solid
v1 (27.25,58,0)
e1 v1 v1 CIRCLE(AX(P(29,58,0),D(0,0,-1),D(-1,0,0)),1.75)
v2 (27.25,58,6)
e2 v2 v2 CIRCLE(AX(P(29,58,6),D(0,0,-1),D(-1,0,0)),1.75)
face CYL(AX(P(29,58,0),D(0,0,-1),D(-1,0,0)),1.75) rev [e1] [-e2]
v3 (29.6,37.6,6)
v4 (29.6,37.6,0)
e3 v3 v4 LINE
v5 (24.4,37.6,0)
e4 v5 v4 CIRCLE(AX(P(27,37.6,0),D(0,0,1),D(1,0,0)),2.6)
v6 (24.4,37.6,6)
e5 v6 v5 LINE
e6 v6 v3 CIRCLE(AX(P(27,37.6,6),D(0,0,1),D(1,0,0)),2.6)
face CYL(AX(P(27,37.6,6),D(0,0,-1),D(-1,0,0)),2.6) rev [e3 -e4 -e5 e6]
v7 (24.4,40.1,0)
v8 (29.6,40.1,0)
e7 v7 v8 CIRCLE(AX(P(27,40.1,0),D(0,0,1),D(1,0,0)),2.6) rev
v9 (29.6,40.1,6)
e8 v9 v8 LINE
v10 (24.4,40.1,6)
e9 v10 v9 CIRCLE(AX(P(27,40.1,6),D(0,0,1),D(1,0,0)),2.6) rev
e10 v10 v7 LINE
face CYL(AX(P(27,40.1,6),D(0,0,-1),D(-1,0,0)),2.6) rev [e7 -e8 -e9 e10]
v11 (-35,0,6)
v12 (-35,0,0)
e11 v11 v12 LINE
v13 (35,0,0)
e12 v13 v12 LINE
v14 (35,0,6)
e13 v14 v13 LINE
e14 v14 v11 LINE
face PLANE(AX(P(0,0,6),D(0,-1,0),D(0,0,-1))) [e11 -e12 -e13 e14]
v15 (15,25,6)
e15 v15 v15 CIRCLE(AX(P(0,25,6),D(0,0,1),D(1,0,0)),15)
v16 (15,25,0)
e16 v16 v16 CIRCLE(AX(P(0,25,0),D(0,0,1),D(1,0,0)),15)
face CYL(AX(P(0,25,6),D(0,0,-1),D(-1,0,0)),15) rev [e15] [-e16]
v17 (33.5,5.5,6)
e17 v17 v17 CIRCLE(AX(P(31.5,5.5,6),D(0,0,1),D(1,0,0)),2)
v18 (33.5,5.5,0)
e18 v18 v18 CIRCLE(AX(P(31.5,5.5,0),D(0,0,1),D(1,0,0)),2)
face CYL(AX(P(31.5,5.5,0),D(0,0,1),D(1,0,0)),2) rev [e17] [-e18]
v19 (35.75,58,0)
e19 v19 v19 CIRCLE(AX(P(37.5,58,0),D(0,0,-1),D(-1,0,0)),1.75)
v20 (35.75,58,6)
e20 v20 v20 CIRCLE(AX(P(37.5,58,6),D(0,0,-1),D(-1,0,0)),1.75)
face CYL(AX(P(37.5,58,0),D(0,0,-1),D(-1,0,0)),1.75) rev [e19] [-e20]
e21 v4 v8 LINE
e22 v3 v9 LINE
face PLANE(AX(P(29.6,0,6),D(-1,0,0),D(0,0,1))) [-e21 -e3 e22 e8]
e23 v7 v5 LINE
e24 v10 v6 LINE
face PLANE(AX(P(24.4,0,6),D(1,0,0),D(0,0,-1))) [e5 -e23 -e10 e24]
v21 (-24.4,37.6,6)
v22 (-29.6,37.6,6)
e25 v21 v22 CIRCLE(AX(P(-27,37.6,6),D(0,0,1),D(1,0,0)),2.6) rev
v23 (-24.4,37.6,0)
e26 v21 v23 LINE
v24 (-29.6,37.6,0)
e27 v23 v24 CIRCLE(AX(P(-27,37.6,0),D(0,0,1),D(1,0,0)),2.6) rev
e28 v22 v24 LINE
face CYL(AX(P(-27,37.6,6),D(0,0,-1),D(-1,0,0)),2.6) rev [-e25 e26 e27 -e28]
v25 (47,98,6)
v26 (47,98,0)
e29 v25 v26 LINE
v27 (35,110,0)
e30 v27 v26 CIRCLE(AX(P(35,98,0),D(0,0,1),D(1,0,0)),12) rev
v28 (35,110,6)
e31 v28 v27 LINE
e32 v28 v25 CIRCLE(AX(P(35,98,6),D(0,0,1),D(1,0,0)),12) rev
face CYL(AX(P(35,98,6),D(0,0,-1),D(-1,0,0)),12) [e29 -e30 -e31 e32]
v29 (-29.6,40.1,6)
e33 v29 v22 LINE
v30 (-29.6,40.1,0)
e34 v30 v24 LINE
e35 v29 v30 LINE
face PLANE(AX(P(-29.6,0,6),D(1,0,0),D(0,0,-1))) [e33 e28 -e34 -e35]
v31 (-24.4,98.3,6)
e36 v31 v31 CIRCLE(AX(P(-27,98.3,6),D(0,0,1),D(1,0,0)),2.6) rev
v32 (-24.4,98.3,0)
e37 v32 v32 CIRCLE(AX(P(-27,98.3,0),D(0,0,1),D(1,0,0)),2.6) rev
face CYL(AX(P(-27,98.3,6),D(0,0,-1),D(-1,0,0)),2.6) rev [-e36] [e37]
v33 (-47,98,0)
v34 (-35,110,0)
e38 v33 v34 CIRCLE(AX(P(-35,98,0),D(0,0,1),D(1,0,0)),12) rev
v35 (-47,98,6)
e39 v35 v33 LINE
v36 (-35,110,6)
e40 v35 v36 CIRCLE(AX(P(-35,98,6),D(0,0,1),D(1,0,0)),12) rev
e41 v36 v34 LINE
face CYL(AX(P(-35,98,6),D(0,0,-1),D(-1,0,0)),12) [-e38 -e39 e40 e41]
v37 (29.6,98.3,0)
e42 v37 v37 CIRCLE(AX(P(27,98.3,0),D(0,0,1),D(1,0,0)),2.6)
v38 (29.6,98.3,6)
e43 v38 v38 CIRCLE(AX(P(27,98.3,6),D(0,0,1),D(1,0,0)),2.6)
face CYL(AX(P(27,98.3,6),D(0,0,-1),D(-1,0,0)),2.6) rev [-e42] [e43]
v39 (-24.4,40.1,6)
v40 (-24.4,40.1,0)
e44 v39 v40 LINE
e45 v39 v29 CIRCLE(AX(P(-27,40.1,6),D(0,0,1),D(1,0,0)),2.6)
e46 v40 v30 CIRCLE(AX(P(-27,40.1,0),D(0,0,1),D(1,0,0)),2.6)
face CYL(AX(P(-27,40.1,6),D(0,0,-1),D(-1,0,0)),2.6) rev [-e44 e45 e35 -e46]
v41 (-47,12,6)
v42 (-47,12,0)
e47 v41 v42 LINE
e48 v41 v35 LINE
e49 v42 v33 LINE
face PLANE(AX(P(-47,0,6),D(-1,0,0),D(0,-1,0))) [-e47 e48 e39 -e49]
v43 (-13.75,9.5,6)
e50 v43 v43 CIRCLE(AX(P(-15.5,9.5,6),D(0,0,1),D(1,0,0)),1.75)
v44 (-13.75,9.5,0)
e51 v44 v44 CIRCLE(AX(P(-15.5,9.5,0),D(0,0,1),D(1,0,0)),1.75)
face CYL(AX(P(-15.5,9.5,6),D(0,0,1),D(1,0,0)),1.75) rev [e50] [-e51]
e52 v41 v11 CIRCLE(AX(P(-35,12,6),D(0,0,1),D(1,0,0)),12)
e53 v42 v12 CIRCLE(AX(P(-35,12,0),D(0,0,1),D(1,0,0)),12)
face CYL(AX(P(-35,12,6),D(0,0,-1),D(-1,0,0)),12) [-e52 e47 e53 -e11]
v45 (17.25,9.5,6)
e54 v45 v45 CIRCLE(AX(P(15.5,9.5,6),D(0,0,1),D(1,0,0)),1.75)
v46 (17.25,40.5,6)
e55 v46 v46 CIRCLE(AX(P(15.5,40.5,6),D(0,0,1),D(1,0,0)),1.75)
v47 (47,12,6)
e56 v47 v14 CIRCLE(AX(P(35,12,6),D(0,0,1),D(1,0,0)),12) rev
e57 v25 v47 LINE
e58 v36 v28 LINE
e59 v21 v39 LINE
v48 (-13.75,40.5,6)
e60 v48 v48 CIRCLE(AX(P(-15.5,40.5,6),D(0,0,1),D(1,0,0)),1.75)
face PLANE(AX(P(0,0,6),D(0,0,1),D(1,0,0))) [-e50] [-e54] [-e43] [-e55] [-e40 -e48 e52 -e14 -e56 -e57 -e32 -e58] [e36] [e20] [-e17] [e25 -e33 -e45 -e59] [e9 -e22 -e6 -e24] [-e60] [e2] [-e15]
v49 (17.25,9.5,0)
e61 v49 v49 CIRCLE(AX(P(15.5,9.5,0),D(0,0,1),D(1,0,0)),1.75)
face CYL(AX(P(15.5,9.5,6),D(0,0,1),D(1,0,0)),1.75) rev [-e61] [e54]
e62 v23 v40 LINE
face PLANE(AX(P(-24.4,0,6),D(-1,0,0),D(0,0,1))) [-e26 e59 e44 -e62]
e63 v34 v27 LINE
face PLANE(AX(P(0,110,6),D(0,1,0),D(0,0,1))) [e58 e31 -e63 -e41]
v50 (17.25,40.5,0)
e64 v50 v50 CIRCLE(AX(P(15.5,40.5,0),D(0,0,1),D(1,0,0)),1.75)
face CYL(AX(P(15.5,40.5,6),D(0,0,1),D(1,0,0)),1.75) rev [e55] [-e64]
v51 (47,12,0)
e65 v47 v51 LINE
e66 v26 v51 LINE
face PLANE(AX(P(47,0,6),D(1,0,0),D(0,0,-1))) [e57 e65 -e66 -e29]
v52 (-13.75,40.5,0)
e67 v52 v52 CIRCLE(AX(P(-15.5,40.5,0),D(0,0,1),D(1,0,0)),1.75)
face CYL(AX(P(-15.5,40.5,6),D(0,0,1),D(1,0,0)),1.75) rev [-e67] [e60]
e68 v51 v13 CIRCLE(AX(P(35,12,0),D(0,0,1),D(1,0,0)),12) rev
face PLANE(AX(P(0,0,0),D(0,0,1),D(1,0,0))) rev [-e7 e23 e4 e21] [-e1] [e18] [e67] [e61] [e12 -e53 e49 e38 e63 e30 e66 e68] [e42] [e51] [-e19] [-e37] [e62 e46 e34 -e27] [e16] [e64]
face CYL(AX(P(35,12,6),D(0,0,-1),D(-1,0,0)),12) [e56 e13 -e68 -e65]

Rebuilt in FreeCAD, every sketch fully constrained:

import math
import FreeCAD as App
import Part
import Sketcher
Q = App.Units.Quantity

doc = App.newDocument("Part")
params = doc.addObject("Spreadsheet::Sheet", "Params")
for row, (alias, value) in enumerate([
    ("sketch1_diameter", "30 mm"),
    ("sketch1_radius", "12 mm"),
    ("sketch1_diameter2", "5.2 mm"),
    ("sketch1_width", "70 mm"),
    ("sketch1_height", "86 mm"),
    ("pad1_length", "6 mm"),
    ("sketch2_diameter", "4 mm"),
    ("sketch3_diameter", "3.5 mm"),
    ("hole_diameter", "3.5 mm"),
    ("sketch4_diameter", "3.5 mm"),
    ("hole2_diameter", "3.5 mm"),
], start=1):
    params.set(f"A{row}", alias)
    params.set(f"B{row}", "=" + value)
    params.setAlias(f"B{row}", alias)

body = doc.addObject("PartDesign::Body", "Body")

# Sketch on XY plane
sketch1 = body.newObject("Sketcher::SketchObject", "Sketch")
sketch1.AttachmentSupport = (doc.getObject("XY_Plane"), [""])
sketch1.MapMode = "FlatFace"
sketch1.addGeometry(Part.LineSegment(App.Vector(47, 12, 0), App.Vector(47, 98, 0)), False)
sketch1.addGeometry(Part.ArcOfCircle(Part.Circle(App.Vector(35, 98, 0), App.Vector(0, 0, 1), 12), math.radians(0), math.radians(90)), False)
sketch1.addGeometry(Part.LineSegment(App.Vector(35, 110, 0), App.Vector(-35, 110, 0)), False)
sketch1.addGeometry(Part.ArcOfCircle(Part.Circle(App.Vector(-35, 98, 0), App.Vector(0, 0, 1), 12), math.radians(90), math.radians(180)), False)
sketch1.addGeometry(Part.LineSegment(App.Vector(-47, 98, 0), App.Vector(-47, 12, 0)), False)
sketch1.addGeometry(Part.ArcOfCircle(Part.Circle(App.Vector(-35, 12, 0), App.Vector(0, 0, 1), 12), math.radians(-180), math.radians(-90)), False)
sketch1.addGeometry(Part.LineSegment(App.Vector(-35, 0, 0), App.Vector(35, 0, 0)), False)
sketch1.addGeometry(Part.ArcOfCircle(Part.Circle(App.Vector(35, 12, 0), App.Vector(0, 0, 1), 12), math.radians(-90), math.radians(0)), False)
sketch1.addGeometry(Part.Circle(App.Vector(0, 25, 0), App.Vector(0, 0, 1), 15), False)
sketch1.addGeometry(Part.ArcOfCircle(Part.Circle(App.Vector(27, 37.6, 0), App.Vector(0, 0, 1), 2.6), math.radians(180), math.radians(360)), False)
sketch1.addGeometry(Part.LineSegment(App.Vector(24.4, 37.6, 0), App.Vector(24.4, 40.1, 0)), False)
sketch1.addGeometry(Part.ArcOfCircle(Part.Circle(App.Vector(27, 40.1, 0), App.Vector(0, 0, 1), 2.6), math.radians(0), math.radians(180)), False)
sketch1.addGeometry(Part.LineSegment(App.Vector(29.6, 40.1, 0), App.Vector(29.6, 37.6, 0)), False)
sketch1.addGeometry(Part.ArcOfCircle(Part.Circle(App.Vector(-27, 40.1, 0), App.Vector(0, 0, 1), 2.6), math.radians(0), math.radians(180)), False)
sketch1.addGeometry(Part.LineSegment(App.Vector(-24.4, 40.1, 0), App.Vector(-24.4, 37.6, 0)), False)
sketch1.addGeometry(Part.ArcOfCircle(Part.Circle(App.Vector(-27, 37.6, 0), App.Vector(0, 0, 1), 2.6), math.radians(180), math.radians(360)), False)
sketch1.addGeometry(Part.LineSegment(App.Vector(-29.6, 37.6, 0), App.Vector(-29.6, 40.1, 0)), False)
sketch1.addGeometry(Part.Circle(App.Vector(27, 98.3, 0), App.Vector(0, 0, 1), 2.6), False)
sketch1.addGeometry(Part.Circle(App.Vector(-27, 98.3, 0), App.Vector(0, 0, 1), 2.6), False)
sketch1.addConstraint(Sketcher.Constraint("Tangent", 0, 2, 1, 1))
sketch1.addConstraint(Sketcher.Constraint("Tangent", 1, 2, 2, 1))
sketch1.addConstraint(Sketcher.Constraint("Tangent", 2, 2, 3, 1))
sketch1.addConstraint(Sketcher.Constraint("Tangent", 3, 2, 4, 1))
sketch1.addConstraint(Sketcher.Constraint("Tangent", 4, 2, 5, 1))
sketch1.addConstraint(Sketcher.Constraint("Tangent", 5, 2, 6, 1))
sketch1.addConstraint(Sketcher.Constraint("Tangent", 6, 2, 7, 1))
sketch1.addConstraint(Sketcher.Constraint("Tangent", 7, 2, 0, 1))
sketch1.addConstraint(Sketcher.Constraint("Tangent", 9, 1, 10, 1))
sketch1.addConstraint(Sketcher.Constraint("Tangent", 10, 2, 11, 2))
sketch1.addConstraint(Sketcher.Constraint("Tangent", 11, 1, 12, 1))
sketch1.addConstraint(Sketcher.Constraint("Tangent", 12, 2, 9, 2))
sketch1.addConstraint(Sketcher.Constraint("Tangent", 13, 1, 14, 1))
sketch1.addConstraint(Sketcher.Constraint("Tangent", 14, 2, 15, 2))
sketch1.addConstraint(Sketcher.Constraint("Tangent", 15, 1, 16, 1))
sketch1.addConstraint(Sketcher.Constraint("Tangent", 16, 2, 13, 2))
sketch1.addConstraint(Sketcher.Constraint("Vertical", 0))
sketch1.addConstraint(Sketcher.Constraint("Horizontal", 2))
sketch1.addConstraint(Sketcher.Constraint("Vertical", 4))
sketch1.addConstraint(Sketcher.Constraint("Horizontal", 6))
sketch1.addConstraint(Sketcher.Constraint("Vertical", 10))
sketch1.addConstraint(Sketcher.Constraint("Vertical", 12))
sketch1.addConstraint(Sketcher.Constraint("Vertical", 14))
sketch1.addConstraint(Sketcher.Constraint("Vertical", 16))
sketch1.addConstraint(Sketcher.Constraint("Equal", 1, 3))
sketch1.addConstraint(Sketcher.Constraint("Equal", 3, 5))
sketch1.addConstraint(Sketcher.Constraint("Equal", 5, 7))
sketch1.addConstraint(Sketcher.Constraint("Equal", 11, 13))
sketch1.addConstraint(Sketcher.Constraint("Equal", 15, 17))
sketch1.addConstraint(Sketcher.Constraint("Equal", 17, 18))
sketch1.addConstraint(Sketcher.Constraint("Symmetric", 5, 2, 6, 2, -1, 1))
sketch1.addConstraint(Sketcher.Constraint("Symmetric", 11, 3, 13, 3, -2))
sketch1.addConstraint(Sketcher.Constraint("Symmetric", 17, 3, 18, 3, -2))
sketch1.addConstraint(Sketcher.Constraint("PointOnObject", 8, 3, -2))
sketch1.addConstraint(Sketcher.Constraint("Horizontal", 9, 3, 15, 3))
sketch1.addConstraint(Sketcher.Constraint("Vertical", 11, 3, 17, 3))
sketch1.addConstraint(Sketcher.Constraint("Diameter", 8, Q("30 mm")))
sketch1.addConstraint(Sketcher.Constraint("Radius", 1, Q("12 mm")))
sketch1.addConstraint(Sketcher.Constraint("Diameter", 17, Q("5.2 mm")))
sketch1.addConstraint(Sketcher.Constraint("DistanceX", 2, 2, 2, 1, Q("70 mm")))
sketch1.addConstraint(Sketcher.Constraint("DistanceY", 0, 1, 0, 2, Q("86 mm")))
sketch1.addConstraint(Sketcher.Constraint("DistanceY", 10, 1, 10, 2, Q("2.5 mm")))
sketch1.addConstraint(Sketcher.Constraint("DistanceY", -1, 1, 8, 3, Q("25 mm")))
sketch1.addConstraint(Sketcher.Constraint("DistanceX", -1, 1, 9, 3, Q("27 mm")))
sketch1.addConstraint(Sketcher.Constraint("DistanceY", -1, 1, 9, 3, Q("37.6 mm")))
sketch1.addConstraint(Sketcher.Constraint("DistanceY", -1, 1, 17, 3, Q("98.3 mm")))
sketch1.setExpression("Constraints[36]", "Params.sketch1_diameter")
sketch1.setExpression("Constraints[37]", "Params.sketch1_radius")
sketch1.setExpression("Constraints[38]", "Params.sketch1_diameter2")
sketch1.setExpression("Constraints[39]", "Params.sketch1_width")
sketch1.setExpression("Constraints[40]", "Params.sketch1_height")
pad1 = body.newObject("PartDesign::Pad", "Pad")
pad1.Profile = sketch1
pad1.setExpression("Length", "Params.pad1_length")

# Sketch on XY plane
sketch2 = body.newObject("Sketcher::SketchObject", "Sketch001")
sketch2.AttachmentSupport = (doc.getObject("XY_Plane"), [""])
sketch2.MapMode = "FlatFace"
sketch2.AttachmentOffset = App.Placement(App.Vector(0, 0, 6), App.Rotation())
sketch2.addGeometry(Part.Circle(App.Vector(31.5, 5.5, 0), App.Vector(0, 0, 1), 2), False)
sketch2.addConstraint(Sketcher.Constraint("Diameter", 0, Q("4 mm")))
sketch2.addConstraint(Sketcher.Constraint("DistanceX", -1, 1, 0, 3, Q("31.5 mm")))
sketch2.addConstraint(Sketcher.Constraint("DistanceY", -1, 1, 0, 3, Q("5.5 mm")))
sketch2.setExpression("Constraints[0]", "Params.sketch2_diameter")
pocket1 = body.newObject("PartDesign::Pocket", "Pocket")
pocket1.Profile = sketch2
pocket1.Type = "ThroughAll"

# Sketch on XY plane
sketch3 = body.newObject("Sketcher::SketchObject", "Sketch002")
sketch3.AttachmentSupport = (doc.getObject("XY_Plane"), [""])
sketch3.MapMode = "FlatFace"
sketch3.AttachmentOffset = App.Placement(App.Vector(0, 0, 6), App.Rotation())
sketch3.addGeometry(Part.Circle(App.Vector(-15.5, 40.5, 0), App.Vector(0, 0, 1), 1.8), False)
sketch3.addGeometry(Part.Circle(App.Vector(-15.5, 9.5, 0), App.Vector(0, 0, 1), 1.8), False)
sketch3.addGeometry(Part.Circle(App.Vector(15.5, 9.5, 0), App.Vector(0, 0, 1), 1.8), False)
sketch3.addGeometry(Part.Circle(App.Vector(15.5, 40.5, 0), App.Vector(0, 0, 1), 1.8), False)
sketch3.addConstraint(Sketcher.Constraint("Equal", 0, 1))
sketch3.addConstraint(Sketcher.Constraint("Equal", 1, 2))
sketch3.addConstraint(Sketcher.Constraint("Equal", 2, 3))
sketch3.addConstraint(Sketcher.Constraint("Symmetric", 1, 3, 2, 3, -2))
sketch3.addConstraint(Sketcher.Constraint("Symmetric", 0, 3, 3, 3, -2))
sketch3.addConstraint(Sketcher.Constraint("Vertical", 0, 3, 1, 3))
sketch3.addConstraint(Sketcher.Constraint("Diameter", 0, Q("3.5 mm")))
sketch3.addConstraint(Sketcher.Constraint("DistanceY", 1, 3, 0, 3, Q("31 mm")))
sketch3.addConstraint(Sketcher.Constraint("DistanceX", 1, 3, 2, 3, Q("31 mm")))
sketch3.addConstraint(Sketcher.Constraint("DistanceY", -1, 1, 0, 3, Q("40.5 mm")))
sketch3.setExpression("Constraints[6]", "Params.sketch3_diameter")
doc.recompute()
hole = body.newObject("PartDesign::Hole", "Hole")
hole.Profile = sketch3
hole.ThreadType = "None"
hole.setExpression("Diameter", "Params.hole_diameter")
hole.DepthType = "ThroughAll"

# Sketch on XY plane
sketch4 = body.newObject("Sketcher::SketchObject", "Sketch003")
sketch4.AttachmentSupport = (doc.getObject("XY_Plane"), [""])
sketch4.MapMode = "FlatFace"
sketch4.addGeometry(Part.Circle(App.Vector(37.5, 58, 0), App.Vector(0, 0, 1), 1.8), False)
sketch4.addGeometry(Part.Circle(App.Vector(29, 58, 0), App.Vector(0, 0, 1), 1.8), False)
sketch4.addConstraint(Sketcher.Constraint("Equal", 0, 1))
sketch4.addConstraint(Sketcher.Constraint("Horizontal", 0, 3, 1, 3))
sketch4.addConstraint(Sketcher.Constraint("Diameter", 0, Q("3.5 mm")))
sketch4.addConstraint(Sketcher.Constraint("DistanceY", -1, 1, 0, 3, Q("58 mm")))
sketch4.addConstraint(Sketcher.Constraint("DistanceX", -1, 1, 1, 3, Q("29 mm")))
sketch4.addConstraint(Sketcher.Constraint("DistanceX", -1, 1, 0, 3, Q("37.5 mm")))
sketch4.setExpression("Constraints[2]", "Params.sketch4_diameter")
doc.recompute()
hole2 = body.newObject("PartDesign::Hole", "Hole001")
hole2.Profile = sketch4
hole2.ThreadType = "None"
hole2.setExpression("Diameter", "Params.hole2_diameter")
hole2.DepthType = "ThroughAll"
hole2.Reversed = True

doc.recompute()
